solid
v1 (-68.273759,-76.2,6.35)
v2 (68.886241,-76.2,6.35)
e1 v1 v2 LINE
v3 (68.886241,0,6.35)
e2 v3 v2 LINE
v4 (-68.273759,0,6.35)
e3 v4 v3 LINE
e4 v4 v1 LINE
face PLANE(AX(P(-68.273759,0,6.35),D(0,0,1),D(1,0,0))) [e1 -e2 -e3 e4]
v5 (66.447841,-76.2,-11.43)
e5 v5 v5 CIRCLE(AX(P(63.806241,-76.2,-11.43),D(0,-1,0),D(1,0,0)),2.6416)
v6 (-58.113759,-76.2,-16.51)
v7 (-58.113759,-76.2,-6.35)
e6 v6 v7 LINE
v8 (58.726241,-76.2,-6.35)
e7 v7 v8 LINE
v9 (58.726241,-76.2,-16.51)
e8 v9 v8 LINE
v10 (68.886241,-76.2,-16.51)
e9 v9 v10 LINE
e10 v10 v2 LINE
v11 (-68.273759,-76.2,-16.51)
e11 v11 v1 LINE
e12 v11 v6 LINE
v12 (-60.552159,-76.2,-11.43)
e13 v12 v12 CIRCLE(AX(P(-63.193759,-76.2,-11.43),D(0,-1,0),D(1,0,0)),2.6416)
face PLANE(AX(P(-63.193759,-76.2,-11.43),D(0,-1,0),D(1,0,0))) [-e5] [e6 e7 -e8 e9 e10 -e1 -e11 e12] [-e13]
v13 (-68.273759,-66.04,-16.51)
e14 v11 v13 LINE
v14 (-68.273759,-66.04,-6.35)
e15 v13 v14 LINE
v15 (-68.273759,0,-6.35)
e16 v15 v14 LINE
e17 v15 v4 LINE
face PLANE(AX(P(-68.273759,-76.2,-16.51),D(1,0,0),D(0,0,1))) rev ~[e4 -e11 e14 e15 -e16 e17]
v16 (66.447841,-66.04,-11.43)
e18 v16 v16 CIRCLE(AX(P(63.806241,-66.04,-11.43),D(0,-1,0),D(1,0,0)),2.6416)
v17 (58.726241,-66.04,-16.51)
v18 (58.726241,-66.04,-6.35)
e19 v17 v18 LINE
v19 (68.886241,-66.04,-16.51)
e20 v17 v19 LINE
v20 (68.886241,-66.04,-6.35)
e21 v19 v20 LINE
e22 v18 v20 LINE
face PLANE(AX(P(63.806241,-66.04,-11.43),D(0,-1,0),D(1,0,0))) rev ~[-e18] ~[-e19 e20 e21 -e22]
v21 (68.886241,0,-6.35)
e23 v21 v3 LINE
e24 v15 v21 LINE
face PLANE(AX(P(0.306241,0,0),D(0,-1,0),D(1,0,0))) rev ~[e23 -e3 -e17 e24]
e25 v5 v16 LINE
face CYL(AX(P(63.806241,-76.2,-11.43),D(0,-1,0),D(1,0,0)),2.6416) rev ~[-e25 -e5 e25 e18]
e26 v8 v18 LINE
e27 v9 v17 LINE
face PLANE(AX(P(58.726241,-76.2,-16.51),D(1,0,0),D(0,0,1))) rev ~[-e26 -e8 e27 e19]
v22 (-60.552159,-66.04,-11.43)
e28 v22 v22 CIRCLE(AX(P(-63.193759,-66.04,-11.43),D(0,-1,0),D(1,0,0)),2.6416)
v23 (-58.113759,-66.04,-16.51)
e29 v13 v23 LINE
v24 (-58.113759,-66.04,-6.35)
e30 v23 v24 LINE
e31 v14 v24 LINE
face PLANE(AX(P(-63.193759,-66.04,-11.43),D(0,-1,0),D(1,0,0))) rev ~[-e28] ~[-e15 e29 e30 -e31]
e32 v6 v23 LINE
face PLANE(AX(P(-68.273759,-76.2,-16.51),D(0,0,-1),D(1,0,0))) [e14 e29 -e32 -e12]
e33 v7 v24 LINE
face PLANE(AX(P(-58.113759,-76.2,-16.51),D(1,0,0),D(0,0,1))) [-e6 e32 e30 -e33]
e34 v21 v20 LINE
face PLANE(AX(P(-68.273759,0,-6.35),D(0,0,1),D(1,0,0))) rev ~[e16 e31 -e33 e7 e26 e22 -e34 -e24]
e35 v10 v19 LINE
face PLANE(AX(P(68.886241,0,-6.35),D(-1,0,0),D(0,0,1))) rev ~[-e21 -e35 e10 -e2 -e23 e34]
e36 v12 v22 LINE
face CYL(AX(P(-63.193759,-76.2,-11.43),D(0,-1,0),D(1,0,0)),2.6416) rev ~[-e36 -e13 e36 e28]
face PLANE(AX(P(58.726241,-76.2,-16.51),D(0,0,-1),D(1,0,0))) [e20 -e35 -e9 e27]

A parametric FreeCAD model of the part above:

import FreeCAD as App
import Part
import Sketcher

V = App.Vector
Q = App.Units.Quantity

doc = App.newDocument("Part")
body = doc.addObject("PartDesign::Body", "Body")

# Sketch on XZ plane
sketch1 = doc.addObject("Sketcher::SketchObject", "Sketch")
body.addObject(sketch1)
sketch1.AttachmentSupport = (doc.XZ_Plane, [""])
sketch1.MapMode = "FlatFace"
sketch1.addGeometry(Part.LineSegment(V(-68, 6, 0), V(-68, -6, 0)), False)
sketch1.addGeometry(Part.LineSegment(V(-68, -6, 0), V(69, -6, 0)), False)
sketch1.addGeometry(Part.LineSegment(V(69, -6, 0), V(69, 6, 0)), False)
sketch1.addGeometry(Part.LineSegment(V(69, 6, 0), V(-68, 6, 0)), False)
sketch1.addConstraint(Sketcher.Constraint("Coincident", 0, 2, 1, 1))
sketch1.addConstraint(Sketcher.Constraint("Coincident", 1, 2, 2, 1))
sketch1.addConstraint(Sketcher.Constraint("Coincident", 2, 2, 3, 1))
sketch1.addConstraint(Sketcher.Constraint("Coincident", 3, 2, 0, 1))
sketch1.addConstraint(Sketcher.Constraint("Vertical", 0))
sketch1.addConstraint(Sketcher.Constraint("Horizontal", 1))
sketch1.addConstraint(Sketcher.Constraint("Vertical", 2))
sketch1.addConstraint(Sketcher.Constraint("Horizontal", 3))
sketch1.addConstraint(Sketcher.Constraint("DistanceX", 1, 1, 1, 2, Q("5.4 in")))
sketch1.addConstraint(Sketcher.Constraint("DistanceY", 0, 2, 0, 1, Q("0.5 in")))
sketch1.addConstraint(Sketcher.Constraint("DistanceY", 0, 2, -1, 1, Q("0.25 in")))
sketch1.addConstraint(Sketcher.Constraint("DistanceX", 0, 2, -1, 1, 68.273759))
pad1 = doc.addObject("PartDesign::Pad", "Pad")
body.addObject(pad1)
pad1.Profile = sketch1
pad1.Length = Q("3 in")

# Sketch on XZ plane
sketch2 = doc.addObject("Sketcher::SketchObject", "Sketch001")
body.addObject(sketch2)
sketch2.AttachmentSupport = (doc.XZ_Plane, [""])
sketch2.MapMode = "FlatFace"
sketch2.AttachmentOffset = App.Placement(V(0, 0, 3 * 25.4), App.Rotation())
sketch2.addGeometry(Part.LineSegment(V(-68, -6, 0), V(-68, -17, 0)), False)
sketch2.addGeometry(Part.LineSegment(V(-68, -17, 0), V(-58, -17, 0)), False)
sketch2.addGeometry(Part.LineSegment(V(-58, -17, 0), V(-58, -6, 0)), False)
sketch2.addGeometry(Part.LineSegment(V(-58, -6, 0), V(-68, -6, 0)), False)
sketch2.addGeometry(Part.LineSegment(V(59, -6, 0), V(59, -17, 0)), False)
sketch2.addGeometry(Part.LineSegment(V(59, -17, 0), V(69, -17, 0)), False)
sketch2.addGeometry(Part.LineSegment(V(69, -17, 0), V(69, -6, 0)), False)
sketch2.addGeometry(Part.LineSegment(V(69, -6, 0), V(59, -6, 0)), False)
sketch2.addConstraint(Sketcher.Constraint("Coincident", 0, 2, 1, 1))
sketch2.addConstraint(Sketcher.Constraint("Coincident", 1, 2, 2, 1))
sketch2.addConstraint(Sketcher.Constraint("Coincident", 2, 2, 3, 1))
sketch2.addConstraint(Sketcher.Constraint("Coincident", 3, 2, 0, 1))
sketch2.addConstraint(Sketcher.Constraint("Coincident", 4, 2, 5, 1))
sketch2.addConstraint(Sketcher.Constraint("Coincident", 5, 2, 6, 1))
sketch2.addConstraint(Sketcher.Constraint("Coincident", 6, 2, 7, 1))
sketch2.addConstraint(Sketcher.Constraint("Coincident", 7, 2, 4, 1))
sketch2.addConstraint(Sketcher.Constraint("Vertical", 0))
sketch2.addConstraint(Sketcher.Constraint("Horizontal", 1))
sketch2.addConstraint(Sketcher.Constraint("Vertical", 2))
sketch2.addConstraint(Sketcher.Constraint("Horizontal", 3))
sketch2.addConstraint(Sketcher.Constraint("Vertical", 4))
sketch2.addConstraint(Sketcher.Constraint("Horizontal", 5))
sketch2.addConstraint(Sketcher.Constraint("Vertical", 6))
sketch2.addConstraint(Sketcher.Constraint("Horizontal", 7))
sketch2.addConstraint(Sketcher.Constraint("Horizontal", 1, 2, 4, 2))
sketch2.addConstraint(Sketcher.Constraint("Horizontal", 3, 2, 6, 2))
sketch2.addConstraint(Sketcher.Constraint("Equal", 3, 5))
sketch2.addConstraint(Sketcher.Constraint("Equal", 7, 0))
sketch2.addConstraint(Sketcher.Constraint("DistanceX", 1, 1, 1, 2, Q("0.4 in")))
sketch2.addConstraint(Sketcher.Constraint("DistanceX", 0, 2, 4, 2, Q("5 in")))
sketch2.addConstraint(Sketcher.Constraint("DistanceY", 0, 2, -1, 1, Q("0.65 in")))
sketch2.addConstraint(Sketcher.Constraint("DistanceX", 0, 2, -1, 1, 68.273759))
pad2 = doc.addObject("PartDesign::Pad", "Pad001")
body.addObject(pad2)
pad2.Profile = sketch2
pad2.Length = Q("0.4 in")
pad2.Reversed = True

# Sketch on XZ plane
sketch3 = doc.addObject("Sketcher::SketchObject", "Sketch002")
body.addObject(sketch3)
sketch3.AttachmentSupport = (doc.XZ_Plane, [""])
sketch3.MapMode = "FlatFace"
sketch3.AttachmentOffset = App.Placement(V(0, 0, 3 * 25.4), App.Rotation())
sketch3.addGeometry(Part.Circle(V(-63.2, -11.4, 0), V(0, 0, 1), 2.6), False)
sketch3.addGeometry(Part.Circle(V(63.8, -11.4, 0), V(0, 0, 1), 2.6), False)
sketch3.addConstraint(Sketcher.Constraint("Equal", 0, 1))
sketch3.addConstraint(Sketcher.Constraint("Horizontal", 0, 3, 1, 3))
sketch3.addConstraint(Sketcher.Constraint("Diameter", 0, Q("0.208 in")))
sketch3.addConstraint(Sketcher.Constraint("DistanceX", 0, 3, 1, 3, Q("5 in")))
sketch3.addConstraint(Sketcher.Constraint("DistanceY", 0, 3, -1, 1, Q("0.45 in")))
sketch3.addConstraint(Sketcher.Constraint("DistanceX", 0, 3, -1, 1, 63.193759))
pocket1 = doc.addObject("PartDesign::Pocket", "Pocket")
body.addObject(pocket1)
pocket1.Profile = sketch3
pocket1.Length = Q("1 in")

doc.recompute()
